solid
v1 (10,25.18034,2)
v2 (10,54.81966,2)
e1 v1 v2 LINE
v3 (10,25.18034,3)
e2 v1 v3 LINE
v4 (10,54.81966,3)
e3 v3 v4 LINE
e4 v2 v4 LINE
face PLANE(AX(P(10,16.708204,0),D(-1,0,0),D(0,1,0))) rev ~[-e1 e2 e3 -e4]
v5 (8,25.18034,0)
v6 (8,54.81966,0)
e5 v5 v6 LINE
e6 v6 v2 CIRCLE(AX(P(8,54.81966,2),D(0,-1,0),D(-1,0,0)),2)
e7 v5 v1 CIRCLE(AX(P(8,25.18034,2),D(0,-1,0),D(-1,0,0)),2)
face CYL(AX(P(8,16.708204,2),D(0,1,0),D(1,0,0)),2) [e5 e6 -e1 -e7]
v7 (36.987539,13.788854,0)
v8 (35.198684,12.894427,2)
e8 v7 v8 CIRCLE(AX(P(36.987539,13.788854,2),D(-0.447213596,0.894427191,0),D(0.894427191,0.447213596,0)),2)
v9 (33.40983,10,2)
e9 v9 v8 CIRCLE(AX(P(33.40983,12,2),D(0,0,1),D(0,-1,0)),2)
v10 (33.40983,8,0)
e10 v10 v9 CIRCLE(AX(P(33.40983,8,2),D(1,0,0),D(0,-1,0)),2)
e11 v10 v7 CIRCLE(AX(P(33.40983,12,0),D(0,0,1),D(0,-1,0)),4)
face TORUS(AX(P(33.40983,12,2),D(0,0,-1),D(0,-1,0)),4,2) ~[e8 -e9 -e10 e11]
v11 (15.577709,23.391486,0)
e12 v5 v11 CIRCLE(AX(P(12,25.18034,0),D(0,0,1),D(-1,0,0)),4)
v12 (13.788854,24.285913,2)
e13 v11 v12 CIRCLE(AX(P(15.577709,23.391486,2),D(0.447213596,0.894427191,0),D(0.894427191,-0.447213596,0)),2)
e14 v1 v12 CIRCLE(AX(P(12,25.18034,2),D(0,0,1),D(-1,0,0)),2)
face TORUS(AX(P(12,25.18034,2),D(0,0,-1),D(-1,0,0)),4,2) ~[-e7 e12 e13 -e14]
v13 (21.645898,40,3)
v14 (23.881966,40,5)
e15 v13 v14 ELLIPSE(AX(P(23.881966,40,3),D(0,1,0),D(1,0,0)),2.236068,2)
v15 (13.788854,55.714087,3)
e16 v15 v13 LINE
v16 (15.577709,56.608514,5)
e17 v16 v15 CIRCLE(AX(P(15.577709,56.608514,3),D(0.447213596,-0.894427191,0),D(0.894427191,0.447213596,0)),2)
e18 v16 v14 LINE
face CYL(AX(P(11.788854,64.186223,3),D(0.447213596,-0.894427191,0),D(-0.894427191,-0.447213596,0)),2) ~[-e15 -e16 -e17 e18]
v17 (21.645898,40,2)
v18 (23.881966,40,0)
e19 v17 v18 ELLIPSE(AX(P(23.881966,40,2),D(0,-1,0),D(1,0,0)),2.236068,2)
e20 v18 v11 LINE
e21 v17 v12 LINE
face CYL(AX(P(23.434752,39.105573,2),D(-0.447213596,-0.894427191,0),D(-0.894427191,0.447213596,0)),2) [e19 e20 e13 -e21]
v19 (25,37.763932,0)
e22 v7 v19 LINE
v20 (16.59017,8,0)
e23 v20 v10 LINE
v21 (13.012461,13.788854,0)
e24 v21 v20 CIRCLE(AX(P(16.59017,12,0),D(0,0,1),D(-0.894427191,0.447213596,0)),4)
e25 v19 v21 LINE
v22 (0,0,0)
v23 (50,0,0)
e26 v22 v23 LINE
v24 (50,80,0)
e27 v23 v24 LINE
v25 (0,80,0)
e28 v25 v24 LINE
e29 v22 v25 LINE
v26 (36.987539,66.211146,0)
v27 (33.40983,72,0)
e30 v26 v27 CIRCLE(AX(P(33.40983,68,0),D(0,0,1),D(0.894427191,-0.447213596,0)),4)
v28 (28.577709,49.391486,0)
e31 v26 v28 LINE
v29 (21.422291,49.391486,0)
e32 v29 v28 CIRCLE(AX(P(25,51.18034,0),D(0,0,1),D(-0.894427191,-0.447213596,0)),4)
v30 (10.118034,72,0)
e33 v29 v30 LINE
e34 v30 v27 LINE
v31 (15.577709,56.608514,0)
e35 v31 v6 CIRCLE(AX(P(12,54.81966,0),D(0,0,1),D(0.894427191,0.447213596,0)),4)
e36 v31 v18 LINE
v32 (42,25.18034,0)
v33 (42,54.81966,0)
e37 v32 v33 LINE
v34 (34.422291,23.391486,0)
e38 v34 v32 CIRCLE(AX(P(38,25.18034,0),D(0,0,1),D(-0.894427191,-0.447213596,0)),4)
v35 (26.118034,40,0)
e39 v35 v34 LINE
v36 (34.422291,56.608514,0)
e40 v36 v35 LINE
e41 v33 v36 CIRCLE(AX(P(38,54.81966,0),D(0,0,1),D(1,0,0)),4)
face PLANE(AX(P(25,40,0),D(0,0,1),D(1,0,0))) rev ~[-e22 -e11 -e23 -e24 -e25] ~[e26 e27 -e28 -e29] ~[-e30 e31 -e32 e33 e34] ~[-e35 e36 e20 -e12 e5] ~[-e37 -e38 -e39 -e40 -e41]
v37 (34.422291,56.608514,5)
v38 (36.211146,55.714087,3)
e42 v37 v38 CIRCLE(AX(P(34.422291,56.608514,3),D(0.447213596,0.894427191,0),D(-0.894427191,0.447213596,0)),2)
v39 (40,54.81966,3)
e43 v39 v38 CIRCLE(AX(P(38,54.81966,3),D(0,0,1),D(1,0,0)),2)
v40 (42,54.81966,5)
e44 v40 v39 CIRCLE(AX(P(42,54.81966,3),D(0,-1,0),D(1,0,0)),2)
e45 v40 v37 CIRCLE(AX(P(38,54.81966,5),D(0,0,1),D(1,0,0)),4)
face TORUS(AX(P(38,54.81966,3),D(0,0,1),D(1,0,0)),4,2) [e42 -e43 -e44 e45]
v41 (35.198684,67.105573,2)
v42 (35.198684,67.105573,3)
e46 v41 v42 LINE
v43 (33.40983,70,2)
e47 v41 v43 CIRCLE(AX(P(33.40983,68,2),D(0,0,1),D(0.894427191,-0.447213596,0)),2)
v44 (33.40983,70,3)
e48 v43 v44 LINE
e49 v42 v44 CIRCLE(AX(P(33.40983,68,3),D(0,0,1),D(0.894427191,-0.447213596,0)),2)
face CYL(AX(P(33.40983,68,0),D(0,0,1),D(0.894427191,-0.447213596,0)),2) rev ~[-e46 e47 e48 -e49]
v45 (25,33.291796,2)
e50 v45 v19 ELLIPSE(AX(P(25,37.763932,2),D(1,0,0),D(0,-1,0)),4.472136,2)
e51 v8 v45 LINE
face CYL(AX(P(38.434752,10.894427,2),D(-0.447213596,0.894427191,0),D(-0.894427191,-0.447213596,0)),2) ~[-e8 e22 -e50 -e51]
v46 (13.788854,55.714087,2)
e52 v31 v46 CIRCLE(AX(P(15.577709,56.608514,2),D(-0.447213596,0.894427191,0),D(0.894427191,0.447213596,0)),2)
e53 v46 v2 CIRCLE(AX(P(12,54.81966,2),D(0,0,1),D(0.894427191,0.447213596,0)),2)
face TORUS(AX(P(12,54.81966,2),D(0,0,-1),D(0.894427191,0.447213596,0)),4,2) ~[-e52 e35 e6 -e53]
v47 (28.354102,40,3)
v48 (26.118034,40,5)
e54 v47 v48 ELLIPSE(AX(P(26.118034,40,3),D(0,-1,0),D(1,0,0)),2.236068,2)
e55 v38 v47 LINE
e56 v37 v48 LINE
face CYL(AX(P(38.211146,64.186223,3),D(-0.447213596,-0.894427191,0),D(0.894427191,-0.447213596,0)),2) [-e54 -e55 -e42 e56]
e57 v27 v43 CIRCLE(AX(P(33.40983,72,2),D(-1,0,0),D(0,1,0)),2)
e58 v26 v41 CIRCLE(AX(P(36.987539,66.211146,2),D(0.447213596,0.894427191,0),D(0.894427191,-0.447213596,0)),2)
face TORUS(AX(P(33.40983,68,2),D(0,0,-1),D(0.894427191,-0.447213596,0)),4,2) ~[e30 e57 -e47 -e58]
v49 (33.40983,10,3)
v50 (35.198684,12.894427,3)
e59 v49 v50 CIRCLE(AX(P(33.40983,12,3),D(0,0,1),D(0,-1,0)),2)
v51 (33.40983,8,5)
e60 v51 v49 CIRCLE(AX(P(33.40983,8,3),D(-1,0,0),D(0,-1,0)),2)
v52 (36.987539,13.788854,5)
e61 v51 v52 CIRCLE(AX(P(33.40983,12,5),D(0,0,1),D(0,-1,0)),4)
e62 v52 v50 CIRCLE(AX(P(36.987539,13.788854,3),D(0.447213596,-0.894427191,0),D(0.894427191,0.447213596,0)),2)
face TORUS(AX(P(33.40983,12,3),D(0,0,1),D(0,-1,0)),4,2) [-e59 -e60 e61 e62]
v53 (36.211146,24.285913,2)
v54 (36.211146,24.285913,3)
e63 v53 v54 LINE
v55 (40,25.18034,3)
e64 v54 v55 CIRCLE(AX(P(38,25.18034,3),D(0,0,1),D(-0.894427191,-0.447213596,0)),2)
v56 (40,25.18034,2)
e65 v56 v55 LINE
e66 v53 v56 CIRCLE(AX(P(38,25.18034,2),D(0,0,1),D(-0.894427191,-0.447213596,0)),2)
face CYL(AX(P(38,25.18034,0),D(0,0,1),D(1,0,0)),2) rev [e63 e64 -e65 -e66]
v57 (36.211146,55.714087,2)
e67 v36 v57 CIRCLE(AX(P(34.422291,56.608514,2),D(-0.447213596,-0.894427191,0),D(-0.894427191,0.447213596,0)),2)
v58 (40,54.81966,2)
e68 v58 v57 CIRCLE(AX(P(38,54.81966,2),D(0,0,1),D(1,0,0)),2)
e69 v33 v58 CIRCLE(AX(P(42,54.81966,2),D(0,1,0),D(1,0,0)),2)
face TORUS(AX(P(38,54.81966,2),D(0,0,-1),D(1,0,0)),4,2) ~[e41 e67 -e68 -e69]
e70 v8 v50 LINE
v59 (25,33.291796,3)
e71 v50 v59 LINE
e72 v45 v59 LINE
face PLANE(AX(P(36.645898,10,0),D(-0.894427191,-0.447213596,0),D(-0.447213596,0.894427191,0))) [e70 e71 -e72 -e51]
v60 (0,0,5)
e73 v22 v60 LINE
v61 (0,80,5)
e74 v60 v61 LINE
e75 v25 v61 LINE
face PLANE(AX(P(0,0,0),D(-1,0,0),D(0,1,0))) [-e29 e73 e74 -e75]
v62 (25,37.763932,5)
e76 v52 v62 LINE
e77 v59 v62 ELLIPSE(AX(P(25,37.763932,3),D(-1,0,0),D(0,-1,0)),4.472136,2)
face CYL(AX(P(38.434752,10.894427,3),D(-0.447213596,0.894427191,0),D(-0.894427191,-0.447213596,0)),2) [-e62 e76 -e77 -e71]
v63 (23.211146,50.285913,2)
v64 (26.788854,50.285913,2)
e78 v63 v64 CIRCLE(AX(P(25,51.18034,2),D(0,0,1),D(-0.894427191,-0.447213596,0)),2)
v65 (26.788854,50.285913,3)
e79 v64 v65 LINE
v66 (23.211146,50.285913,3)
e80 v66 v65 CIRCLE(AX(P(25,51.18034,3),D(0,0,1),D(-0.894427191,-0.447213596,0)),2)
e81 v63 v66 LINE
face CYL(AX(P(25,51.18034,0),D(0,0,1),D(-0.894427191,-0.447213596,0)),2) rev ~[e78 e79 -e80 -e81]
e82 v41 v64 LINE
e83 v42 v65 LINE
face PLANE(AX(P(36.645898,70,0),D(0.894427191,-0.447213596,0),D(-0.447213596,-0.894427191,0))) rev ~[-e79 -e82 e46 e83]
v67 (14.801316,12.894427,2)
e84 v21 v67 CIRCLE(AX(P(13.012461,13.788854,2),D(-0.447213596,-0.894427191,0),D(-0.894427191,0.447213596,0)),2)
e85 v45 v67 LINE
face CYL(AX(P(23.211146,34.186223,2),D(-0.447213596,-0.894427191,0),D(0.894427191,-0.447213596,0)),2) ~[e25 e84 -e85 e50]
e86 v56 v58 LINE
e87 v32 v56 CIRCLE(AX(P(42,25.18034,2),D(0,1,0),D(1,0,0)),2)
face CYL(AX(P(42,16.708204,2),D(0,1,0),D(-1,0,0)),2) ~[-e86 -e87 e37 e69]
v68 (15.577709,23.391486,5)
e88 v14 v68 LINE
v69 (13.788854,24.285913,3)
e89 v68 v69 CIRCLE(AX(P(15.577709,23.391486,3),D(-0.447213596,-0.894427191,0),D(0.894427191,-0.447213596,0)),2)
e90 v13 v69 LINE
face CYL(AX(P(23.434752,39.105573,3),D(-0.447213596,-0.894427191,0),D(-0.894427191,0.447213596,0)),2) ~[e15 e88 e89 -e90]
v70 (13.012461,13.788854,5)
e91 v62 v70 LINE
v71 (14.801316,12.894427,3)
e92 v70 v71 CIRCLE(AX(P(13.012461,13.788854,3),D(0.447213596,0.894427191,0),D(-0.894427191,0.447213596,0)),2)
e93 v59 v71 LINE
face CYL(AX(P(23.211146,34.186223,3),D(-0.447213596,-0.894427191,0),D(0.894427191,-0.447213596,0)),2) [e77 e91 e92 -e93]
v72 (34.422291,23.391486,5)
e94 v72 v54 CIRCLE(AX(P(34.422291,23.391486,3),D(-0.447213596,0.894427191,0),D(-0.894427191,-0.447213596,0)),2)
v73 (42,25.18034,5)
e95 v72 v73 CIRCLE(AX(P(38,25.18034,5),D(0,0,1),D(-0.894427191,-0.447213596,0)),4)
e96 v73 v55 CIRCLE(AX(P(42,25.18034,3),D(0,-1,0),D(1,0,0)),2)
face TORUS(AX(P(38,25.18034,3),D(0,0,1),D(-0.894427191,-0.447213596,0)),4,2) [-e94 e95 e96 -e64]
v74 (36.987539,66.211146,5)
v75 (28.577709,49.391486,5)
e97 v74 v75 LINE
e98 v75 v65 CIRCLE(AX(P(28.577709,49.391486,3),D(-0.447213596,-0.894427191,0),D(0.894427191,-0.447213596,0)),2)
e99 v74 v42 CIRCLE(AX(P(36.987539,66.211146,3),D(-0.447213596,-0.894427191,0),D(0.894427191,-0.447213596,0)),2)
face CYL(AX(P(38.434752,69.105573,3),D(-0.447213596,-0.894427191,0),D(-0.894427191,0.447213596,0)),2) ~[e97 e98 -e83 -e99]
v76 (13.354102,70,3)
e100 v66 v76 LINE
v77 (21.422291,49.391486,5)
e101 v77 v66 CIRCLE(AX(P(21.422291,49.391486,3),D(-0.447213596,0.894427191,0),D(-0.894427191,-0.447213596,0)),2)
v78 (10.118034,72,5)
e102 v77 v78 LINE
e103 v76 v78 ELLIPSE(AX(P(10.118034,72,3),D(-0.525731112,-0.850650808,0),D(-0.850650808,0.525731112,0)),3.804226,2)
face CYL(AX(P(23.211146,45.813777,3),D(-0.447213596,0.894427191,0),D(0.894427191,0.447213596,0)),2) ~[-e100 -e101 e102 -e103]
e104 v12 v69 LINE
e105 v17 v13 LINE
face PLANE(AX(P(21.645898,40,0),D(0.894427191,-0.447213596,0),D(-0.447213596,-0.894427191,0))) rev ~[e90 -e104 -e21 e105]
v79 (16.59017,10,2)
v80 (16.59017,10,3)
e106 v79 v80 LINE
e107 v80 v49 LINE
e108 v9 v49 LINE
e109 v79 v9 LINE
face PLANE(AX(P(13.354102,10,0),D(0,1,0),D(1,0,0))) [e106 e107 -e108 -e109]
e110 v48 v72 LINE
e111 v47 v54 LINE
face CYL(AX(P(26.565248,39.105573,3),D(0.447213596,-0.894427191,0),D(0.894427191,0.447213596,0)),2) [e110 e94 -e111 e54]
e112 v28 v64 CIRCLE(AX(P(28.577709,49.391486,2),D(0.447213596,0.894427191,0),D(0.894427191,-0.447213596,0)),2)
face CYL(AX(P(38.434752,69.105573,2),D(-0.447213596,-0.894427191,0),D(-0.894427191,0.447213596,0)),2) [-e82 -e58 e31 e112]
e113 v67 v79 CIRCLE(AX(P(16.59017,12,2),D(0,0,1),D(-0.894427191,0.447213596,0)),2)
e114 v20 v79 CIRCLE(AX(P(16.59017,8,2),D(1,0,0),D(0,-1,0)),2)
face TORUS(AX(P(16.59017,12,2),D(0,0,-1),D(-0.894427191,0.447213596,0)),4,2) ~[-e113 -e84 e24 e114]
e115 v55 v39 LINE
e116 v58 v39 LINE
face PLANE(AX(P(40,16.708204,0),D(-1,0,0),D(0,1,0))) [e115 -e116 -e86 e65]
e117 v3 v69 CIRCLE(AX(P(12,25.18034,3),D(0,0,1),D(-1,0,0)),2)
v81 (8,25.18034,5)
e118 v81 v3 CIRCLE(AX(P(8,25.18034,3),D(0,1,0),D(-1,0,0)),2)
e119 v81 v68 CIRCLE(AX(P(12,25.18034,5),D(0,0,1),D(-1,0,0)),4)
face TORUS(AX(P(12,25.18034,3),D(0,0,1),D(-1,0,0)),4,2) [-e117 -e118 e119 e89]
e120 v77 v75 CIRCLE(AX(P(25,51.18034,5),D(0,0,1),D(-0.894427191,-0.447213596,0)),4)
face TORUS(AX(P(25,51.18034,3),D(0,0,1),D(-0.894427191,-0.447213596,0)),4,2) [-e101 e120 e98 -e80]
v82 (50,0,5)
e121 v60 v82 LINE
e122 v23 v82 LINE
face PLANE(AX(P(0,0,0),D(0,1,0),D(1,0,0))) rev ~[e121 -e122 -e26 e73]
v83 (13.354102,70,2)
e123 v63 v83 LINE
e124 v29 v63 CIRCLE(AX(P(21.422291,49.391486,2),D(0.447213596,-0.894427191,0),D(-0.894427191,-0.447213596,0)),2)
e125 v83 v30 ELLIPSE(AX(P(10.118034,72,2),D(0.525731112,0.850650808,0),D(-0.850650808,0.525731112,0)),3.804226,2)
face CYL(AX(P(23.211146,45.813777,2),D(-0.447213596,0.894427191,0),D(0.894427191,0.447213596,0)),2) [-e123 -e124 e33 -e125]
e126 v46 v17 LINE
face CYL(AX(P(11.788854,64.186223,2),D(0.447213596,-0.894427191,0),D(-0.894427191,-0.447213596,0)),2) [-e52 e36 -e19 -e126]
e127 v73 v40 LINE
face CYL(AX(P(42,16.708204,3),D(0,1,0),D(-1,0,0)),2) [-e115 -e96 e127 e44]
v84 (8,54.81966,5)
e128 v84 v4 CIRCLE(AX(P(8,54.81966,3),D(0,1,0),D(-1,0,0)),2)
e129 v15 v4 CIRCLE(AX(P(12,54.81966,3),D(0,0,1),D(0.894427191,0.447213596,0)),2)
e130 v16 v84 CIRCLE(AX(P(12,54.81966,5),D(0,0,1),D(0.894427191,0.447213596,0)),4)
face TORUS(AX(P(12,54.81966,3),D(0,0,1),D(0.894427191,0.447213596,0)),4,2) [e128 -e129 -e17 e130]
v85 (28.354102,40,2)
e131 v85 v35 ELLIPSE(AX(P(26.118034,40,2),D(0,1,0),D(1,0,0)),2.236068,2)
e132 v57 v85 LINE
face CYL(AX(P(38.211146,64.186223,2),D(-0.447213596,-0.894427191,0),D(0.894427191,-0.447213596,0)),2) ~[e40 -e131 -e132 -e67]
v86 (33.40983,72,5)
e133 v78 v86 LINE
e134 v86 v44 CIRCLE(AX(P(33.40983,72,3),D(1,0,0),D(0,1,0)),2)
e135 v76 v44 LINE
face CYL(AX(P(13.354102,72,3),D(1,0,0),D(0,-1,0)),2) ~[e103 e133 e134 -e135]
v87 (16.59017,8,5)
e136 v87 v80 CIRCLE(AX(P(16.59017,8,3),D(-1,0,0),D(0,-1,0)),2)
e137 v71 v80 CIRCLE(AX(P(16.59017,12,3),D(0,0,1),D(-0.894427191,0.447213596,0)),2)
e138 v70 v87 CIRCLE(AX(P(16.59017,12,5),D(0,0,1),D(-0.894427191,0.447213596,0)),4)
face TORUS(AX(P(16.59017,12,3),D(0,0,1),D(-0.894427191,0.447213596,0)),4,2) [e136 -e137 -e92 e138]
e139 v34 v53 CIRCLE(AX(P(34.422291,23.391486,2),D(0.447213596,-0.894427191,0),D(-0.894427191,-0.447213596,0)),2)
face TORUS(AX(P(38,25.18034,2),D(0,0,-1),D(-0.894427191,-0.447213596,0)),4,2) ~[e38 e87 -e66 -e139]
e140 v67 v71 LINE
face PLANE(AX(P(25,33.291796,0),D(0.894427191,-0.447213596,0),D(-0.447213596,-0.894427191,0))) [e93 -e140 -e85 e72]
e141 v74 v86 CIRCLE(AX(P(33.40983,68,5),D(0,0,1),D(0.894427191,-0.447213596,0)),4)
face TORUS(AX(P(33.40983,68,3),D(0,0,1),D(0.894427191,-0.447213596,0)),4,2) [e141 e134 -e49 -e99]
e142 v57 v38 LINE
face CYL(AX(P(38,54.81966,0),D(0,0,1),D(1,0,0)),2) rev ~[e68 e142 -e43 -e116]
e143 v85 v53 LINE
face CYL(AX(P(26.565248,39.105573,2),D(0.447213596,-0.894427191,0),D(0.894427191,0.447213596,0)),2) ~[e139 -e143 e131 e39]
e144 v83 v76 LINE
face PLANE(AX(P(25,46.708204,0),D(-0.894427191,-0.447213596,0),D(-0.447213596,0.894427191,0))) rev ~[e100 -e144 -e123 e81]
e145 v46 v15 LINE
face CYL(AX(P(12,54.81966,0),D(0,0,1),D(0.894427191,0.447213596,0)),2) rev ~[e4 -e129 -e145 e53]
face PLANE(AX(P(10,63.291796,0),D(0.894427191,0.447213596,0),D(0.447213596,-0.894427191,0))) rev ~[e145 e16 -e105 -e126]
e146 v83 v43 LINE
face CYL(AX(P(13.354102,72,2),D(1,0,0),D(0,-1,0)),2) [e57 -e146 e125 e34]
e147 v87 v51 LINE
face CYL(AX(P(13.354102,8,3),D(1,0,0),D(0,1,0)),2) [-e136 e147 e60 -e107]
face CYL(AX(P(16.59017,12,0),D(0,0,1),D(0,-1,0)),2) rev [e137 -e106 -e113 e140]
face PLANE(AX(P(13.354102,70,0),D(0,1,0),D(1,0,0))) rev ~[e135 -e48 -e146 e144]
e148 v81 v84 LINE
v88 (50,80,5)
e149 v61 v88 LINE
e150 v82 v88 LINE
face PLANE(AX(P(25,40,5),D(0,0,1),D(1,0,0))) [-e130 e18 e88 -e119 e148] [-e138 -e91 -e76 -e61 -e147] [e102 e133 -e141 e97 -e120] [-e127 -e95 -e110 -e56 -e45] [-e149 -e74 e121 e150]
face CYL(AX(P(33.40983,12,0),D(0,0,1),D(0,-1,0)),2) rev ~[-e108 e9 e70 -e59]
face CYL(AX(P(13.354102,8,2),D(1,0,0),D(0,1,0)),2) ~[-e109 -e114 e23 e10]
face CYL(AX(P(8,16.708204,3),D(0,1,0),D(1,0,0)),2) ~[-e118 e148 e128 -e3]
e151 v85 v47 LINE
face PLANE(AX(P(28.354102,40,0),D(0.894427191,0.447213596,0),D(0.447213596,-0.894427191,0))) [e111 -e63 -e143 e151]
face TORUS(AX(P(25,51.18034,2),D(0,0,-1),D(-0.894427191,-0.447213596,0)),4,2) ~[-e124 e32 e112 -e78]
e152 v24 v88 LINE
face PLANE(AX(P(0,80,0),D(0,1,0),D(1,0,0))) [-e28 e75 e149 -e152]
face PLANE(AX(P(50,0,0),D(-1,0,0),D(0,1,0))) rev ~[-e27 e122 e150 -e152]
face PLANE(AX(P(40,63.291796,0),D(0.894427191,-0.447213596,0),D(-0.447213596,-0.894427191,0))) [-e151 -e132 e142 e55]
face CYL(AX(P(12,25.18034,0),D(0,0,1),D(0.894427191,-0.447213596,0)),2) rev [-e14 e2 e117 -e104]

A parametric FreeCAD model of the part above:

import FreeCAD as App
import Part
import Sketcher

V = App.Vector
Q = App.Units.Quantity


def edges_at(feature, points):
    """Names of the edges that pass closest to the given points."""
    edges = feature.Shape.Edges
    near = lambda p: min(range(len(edges)), key=lambda i: edges[i].distToShape(Part.Vertex(*p))[0])
    return sorted({f"Edge{near(p) + 1}" for p in points})


def add_polygon(sketch, points):
    """Adds a closed chain of lines whose ends are joined by coincident constraints."""
    first, n = sketch.GeometryCount, len(points)
    for a, b in zip(points, points[1:] + points[:1]):
        sketch.addGeometry(Part.LineSegment(App.Vector(*a, 0), App.Vector(*b, 0)), False)
    for i in range(n):
        sketch.addConstraint(Sketcher.Constraint("Coincident", first + i, 2, first + (i + 1) % n, 1))

doc = App.newDocument("Part")
body = doc.addObject("PartDesign::Body", "Body")

# Sketch on XY plane
sketch1 = body.newObject("Sketcher::SketchObject", "Sketch")
sketch1.AttachmentSupport = (doc.getObject("XY_Plane"), [""])
sketch1.MapMode = "FlatFace"
add_polygon(sketch1, [(0, 80), (0, 0), (50, 0), (50, 80)])  # lines 0-3
add_polygon(sketch1, [(36.645898, 10), (13.354102, 10), (25, 33.291796)])  # lines 4-6
add_polygon(sketch1, [(21.645898, 40), (10, 16.708204), (10, 63.291796)])  # lines 7-9
add_polygon(sketch1, [(40, 63.291796), (40, 16.708204), (28.354102, 40)])  # lines 10-12
add_polygon(sketch1, [(25, 46.708204), (13.354102, 70), (36.645898, 70)])  # lines 13-15
sketch1.addConstraint(Sketcher.Constraint("Vertical", 0))
sketch1.addConstraint(Sketcher.Constraint("Horizontal", 1))
sketch1.addConstraint(Sketcher.Constraint("Vertical", 2))
sketch1.addConstraint(Sketcher.Constraint("Horizontal", 3))
sketch1.addConstraint(Sketcher.Constraint("Horizontal", 4))
sketch1.addConstraint(Sketcher.Constraint("Vertical", 8))
sketch1.addConstraint(Sketcher.Constraint("Vertical", 10))
sketch1.addConstraint(Sketcher.Constraint("Horizontal", 14))
sketch1.addConstraint(Sketcher.Constraint("Coincident", 0, 2, -1, 1))
sketch1.addConstraint(Sketcher.Constraint("Parallel", 5, 7))
sketch1.addConstraint(Sketcher.Constraint("Parallel", 6, 9))
sketch1.addConstraint(Sketcher.Constraint("Parallel", 9, 11))
sketch1.addConstraint(Sketcher.Constraint("Parallel", 7, 12))
sketch1.addConstraint(Sketcher.Constraint("Parallel", 11, 13))
sketch1.addConstraint(Sketcher.Constraint("Parallel", 12, 15))
sketch1.addConstraint(Sketcher.Constraint("Horizontal", 7, 2, 10, 2))
sketch1.addConstraint(Sketcher.Constraint("Horizontal", 9, 2, 11, 2))
sketch1.addConstraint(Sketcher.Constraint("Horizontal", 8, 2, 12, 2))
sketch1.addConstraint(Sketcher.Constraint("Vertical", 4, 2, 13, 2))
sketch1.addConstraint(Sketcher.Constraint("Vertical", 6, 2, 14, 2))
sketch1.addConstraint(Sketcher.Constraint("Equal", 6, 7))
sketch1.addConstraint(Sketcher.Constraint("DistanceX", 1, 1, 1, 2, Q("50 mm")))
sketch1.addConstraint(Sketcher.Constraint("DistanceY", 0, 2, 0, 1, Q("80 mm")))
sketch1.addConstraint(Sketcher.Constraint("DistanceY", -1, 1, 4, 2, Q("10 mm")))
sketch1.addConstraint(Sketcher.Constraint("DistanceX", -1, 1, 5, 2, Q("25 mm")))
sketch1.addConstraint(Sketcher.Constraint("DistanceX", -1, 1, 7, 2, Q("10 mm")))
sketch1.addConstraint(Sketcher.Constraint("DistanceY", -1, 1, 9, 2, Q("40 mm")))
sketch1.addConstraint(Sketcher.Constraint("DistanceX", -1, 1, 10, 2, Q("40 mm")))
sketch1.addConstraint(Sketcher.Constraint("DistanceY", -1, 1, 13, 2, Q("70 mm")))
sketch1.addConstraint(Sketcher.Constraint("DistanceX", -1, 1, 4, 2, Q("13.354102 mm")))
sketch1.addConstraint(Sketcher.Constraint("Distance", 5, Q("26.04102 mm")))
pad1 = body.newObject("PartDesign::Pad", "Pad")
pad1.Profile = sketch1
pad1.Length = 5
doc.recompute()

fillet = body.newObject("PartDesign::Fillet", "Fillet")
fillet.Base = (pad1, edges_at(pad1, [
    (15.823, 51.646, 0),
    (10, 40, 0),
    (10, 63.292, 2.5),
    (15.823, 28.354, 0),
    (10, 16.708, 2.5),
    (15.823, 51.646, 5),
    (10, 40, 5),
    (15.823, 28.354, 5),
    (19.177, 58.354, 0),
    (30.823, 58.354, 0),
    (25, 46.708, 2.5),
    (25, 70, 0),
    (36.646, 70, 2.5),
    (19.177, 58.354, 5),
    (30.823, 58.354, 5),
    (25, 70, 5),
    (19.177, 21.646, 0),
    (25, 10, 0),
    (13.354, 10, 2.5),
    (30.823, 21.646, 0),
    (36.646, 10, 2.5),
    (19.177, 21.646, 5),
    (25, 10, 5),
    (30.823, 21.646, 5),
    (34.177, 28.354, 0),
    (40, 40, 0),
    (40, 16.708, 2.5),
    (34.177, 51.646, 0),
    (40, 63.292, 2.5),
    (34.177, 28.354, 5),
    (40, 40, 5),
    (34.177, 51.646, 5),
]))
fillet.Radius = 2

doc.recompute()
